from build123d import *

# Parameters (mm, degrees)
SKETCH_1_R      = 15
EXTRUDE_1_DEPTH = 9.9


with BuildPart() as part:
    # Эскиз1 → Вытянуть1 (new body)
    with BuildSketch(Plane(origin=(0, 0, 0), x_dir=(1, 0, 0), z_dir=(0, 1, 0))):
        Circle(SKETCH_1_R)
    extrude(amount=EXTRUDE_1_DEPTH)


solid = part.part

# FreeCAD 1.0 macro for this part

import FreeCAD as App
import Part
import Sketcher
from FreeCAD import Vector

doc = App.newDocument("Part")
body = doc.addObject("PartDesign::Body", "Body")

# Sketch on XZ plane
sketch1 = doc.addObject("Sketcher::SketchObject", "Sketch")
body.addObject(sketch1)
sketch1.AttachmentSupport = (doc.XZ_Plane, [""])
sketch1.MapMode = "FlatFace"
sketch1.addGeometry(Part.Circle(Vector(0, 0, 0), Vector(0, 0, 1), 15), False)
sketch1.addConstraint([
    Sketcher.Constraint("Coincident", 0, 3, -1, 1),
    Sketcher.Constraint("Diameter", 0, 30.0),
])
pad1 = doc.addObject("PartDesign::Pad", "Pad")
body.addObject(pad1)
pad1.Profile = sketch1
pad1.Length = 9.9
pad1.Reversed = True

doc.recompute()
